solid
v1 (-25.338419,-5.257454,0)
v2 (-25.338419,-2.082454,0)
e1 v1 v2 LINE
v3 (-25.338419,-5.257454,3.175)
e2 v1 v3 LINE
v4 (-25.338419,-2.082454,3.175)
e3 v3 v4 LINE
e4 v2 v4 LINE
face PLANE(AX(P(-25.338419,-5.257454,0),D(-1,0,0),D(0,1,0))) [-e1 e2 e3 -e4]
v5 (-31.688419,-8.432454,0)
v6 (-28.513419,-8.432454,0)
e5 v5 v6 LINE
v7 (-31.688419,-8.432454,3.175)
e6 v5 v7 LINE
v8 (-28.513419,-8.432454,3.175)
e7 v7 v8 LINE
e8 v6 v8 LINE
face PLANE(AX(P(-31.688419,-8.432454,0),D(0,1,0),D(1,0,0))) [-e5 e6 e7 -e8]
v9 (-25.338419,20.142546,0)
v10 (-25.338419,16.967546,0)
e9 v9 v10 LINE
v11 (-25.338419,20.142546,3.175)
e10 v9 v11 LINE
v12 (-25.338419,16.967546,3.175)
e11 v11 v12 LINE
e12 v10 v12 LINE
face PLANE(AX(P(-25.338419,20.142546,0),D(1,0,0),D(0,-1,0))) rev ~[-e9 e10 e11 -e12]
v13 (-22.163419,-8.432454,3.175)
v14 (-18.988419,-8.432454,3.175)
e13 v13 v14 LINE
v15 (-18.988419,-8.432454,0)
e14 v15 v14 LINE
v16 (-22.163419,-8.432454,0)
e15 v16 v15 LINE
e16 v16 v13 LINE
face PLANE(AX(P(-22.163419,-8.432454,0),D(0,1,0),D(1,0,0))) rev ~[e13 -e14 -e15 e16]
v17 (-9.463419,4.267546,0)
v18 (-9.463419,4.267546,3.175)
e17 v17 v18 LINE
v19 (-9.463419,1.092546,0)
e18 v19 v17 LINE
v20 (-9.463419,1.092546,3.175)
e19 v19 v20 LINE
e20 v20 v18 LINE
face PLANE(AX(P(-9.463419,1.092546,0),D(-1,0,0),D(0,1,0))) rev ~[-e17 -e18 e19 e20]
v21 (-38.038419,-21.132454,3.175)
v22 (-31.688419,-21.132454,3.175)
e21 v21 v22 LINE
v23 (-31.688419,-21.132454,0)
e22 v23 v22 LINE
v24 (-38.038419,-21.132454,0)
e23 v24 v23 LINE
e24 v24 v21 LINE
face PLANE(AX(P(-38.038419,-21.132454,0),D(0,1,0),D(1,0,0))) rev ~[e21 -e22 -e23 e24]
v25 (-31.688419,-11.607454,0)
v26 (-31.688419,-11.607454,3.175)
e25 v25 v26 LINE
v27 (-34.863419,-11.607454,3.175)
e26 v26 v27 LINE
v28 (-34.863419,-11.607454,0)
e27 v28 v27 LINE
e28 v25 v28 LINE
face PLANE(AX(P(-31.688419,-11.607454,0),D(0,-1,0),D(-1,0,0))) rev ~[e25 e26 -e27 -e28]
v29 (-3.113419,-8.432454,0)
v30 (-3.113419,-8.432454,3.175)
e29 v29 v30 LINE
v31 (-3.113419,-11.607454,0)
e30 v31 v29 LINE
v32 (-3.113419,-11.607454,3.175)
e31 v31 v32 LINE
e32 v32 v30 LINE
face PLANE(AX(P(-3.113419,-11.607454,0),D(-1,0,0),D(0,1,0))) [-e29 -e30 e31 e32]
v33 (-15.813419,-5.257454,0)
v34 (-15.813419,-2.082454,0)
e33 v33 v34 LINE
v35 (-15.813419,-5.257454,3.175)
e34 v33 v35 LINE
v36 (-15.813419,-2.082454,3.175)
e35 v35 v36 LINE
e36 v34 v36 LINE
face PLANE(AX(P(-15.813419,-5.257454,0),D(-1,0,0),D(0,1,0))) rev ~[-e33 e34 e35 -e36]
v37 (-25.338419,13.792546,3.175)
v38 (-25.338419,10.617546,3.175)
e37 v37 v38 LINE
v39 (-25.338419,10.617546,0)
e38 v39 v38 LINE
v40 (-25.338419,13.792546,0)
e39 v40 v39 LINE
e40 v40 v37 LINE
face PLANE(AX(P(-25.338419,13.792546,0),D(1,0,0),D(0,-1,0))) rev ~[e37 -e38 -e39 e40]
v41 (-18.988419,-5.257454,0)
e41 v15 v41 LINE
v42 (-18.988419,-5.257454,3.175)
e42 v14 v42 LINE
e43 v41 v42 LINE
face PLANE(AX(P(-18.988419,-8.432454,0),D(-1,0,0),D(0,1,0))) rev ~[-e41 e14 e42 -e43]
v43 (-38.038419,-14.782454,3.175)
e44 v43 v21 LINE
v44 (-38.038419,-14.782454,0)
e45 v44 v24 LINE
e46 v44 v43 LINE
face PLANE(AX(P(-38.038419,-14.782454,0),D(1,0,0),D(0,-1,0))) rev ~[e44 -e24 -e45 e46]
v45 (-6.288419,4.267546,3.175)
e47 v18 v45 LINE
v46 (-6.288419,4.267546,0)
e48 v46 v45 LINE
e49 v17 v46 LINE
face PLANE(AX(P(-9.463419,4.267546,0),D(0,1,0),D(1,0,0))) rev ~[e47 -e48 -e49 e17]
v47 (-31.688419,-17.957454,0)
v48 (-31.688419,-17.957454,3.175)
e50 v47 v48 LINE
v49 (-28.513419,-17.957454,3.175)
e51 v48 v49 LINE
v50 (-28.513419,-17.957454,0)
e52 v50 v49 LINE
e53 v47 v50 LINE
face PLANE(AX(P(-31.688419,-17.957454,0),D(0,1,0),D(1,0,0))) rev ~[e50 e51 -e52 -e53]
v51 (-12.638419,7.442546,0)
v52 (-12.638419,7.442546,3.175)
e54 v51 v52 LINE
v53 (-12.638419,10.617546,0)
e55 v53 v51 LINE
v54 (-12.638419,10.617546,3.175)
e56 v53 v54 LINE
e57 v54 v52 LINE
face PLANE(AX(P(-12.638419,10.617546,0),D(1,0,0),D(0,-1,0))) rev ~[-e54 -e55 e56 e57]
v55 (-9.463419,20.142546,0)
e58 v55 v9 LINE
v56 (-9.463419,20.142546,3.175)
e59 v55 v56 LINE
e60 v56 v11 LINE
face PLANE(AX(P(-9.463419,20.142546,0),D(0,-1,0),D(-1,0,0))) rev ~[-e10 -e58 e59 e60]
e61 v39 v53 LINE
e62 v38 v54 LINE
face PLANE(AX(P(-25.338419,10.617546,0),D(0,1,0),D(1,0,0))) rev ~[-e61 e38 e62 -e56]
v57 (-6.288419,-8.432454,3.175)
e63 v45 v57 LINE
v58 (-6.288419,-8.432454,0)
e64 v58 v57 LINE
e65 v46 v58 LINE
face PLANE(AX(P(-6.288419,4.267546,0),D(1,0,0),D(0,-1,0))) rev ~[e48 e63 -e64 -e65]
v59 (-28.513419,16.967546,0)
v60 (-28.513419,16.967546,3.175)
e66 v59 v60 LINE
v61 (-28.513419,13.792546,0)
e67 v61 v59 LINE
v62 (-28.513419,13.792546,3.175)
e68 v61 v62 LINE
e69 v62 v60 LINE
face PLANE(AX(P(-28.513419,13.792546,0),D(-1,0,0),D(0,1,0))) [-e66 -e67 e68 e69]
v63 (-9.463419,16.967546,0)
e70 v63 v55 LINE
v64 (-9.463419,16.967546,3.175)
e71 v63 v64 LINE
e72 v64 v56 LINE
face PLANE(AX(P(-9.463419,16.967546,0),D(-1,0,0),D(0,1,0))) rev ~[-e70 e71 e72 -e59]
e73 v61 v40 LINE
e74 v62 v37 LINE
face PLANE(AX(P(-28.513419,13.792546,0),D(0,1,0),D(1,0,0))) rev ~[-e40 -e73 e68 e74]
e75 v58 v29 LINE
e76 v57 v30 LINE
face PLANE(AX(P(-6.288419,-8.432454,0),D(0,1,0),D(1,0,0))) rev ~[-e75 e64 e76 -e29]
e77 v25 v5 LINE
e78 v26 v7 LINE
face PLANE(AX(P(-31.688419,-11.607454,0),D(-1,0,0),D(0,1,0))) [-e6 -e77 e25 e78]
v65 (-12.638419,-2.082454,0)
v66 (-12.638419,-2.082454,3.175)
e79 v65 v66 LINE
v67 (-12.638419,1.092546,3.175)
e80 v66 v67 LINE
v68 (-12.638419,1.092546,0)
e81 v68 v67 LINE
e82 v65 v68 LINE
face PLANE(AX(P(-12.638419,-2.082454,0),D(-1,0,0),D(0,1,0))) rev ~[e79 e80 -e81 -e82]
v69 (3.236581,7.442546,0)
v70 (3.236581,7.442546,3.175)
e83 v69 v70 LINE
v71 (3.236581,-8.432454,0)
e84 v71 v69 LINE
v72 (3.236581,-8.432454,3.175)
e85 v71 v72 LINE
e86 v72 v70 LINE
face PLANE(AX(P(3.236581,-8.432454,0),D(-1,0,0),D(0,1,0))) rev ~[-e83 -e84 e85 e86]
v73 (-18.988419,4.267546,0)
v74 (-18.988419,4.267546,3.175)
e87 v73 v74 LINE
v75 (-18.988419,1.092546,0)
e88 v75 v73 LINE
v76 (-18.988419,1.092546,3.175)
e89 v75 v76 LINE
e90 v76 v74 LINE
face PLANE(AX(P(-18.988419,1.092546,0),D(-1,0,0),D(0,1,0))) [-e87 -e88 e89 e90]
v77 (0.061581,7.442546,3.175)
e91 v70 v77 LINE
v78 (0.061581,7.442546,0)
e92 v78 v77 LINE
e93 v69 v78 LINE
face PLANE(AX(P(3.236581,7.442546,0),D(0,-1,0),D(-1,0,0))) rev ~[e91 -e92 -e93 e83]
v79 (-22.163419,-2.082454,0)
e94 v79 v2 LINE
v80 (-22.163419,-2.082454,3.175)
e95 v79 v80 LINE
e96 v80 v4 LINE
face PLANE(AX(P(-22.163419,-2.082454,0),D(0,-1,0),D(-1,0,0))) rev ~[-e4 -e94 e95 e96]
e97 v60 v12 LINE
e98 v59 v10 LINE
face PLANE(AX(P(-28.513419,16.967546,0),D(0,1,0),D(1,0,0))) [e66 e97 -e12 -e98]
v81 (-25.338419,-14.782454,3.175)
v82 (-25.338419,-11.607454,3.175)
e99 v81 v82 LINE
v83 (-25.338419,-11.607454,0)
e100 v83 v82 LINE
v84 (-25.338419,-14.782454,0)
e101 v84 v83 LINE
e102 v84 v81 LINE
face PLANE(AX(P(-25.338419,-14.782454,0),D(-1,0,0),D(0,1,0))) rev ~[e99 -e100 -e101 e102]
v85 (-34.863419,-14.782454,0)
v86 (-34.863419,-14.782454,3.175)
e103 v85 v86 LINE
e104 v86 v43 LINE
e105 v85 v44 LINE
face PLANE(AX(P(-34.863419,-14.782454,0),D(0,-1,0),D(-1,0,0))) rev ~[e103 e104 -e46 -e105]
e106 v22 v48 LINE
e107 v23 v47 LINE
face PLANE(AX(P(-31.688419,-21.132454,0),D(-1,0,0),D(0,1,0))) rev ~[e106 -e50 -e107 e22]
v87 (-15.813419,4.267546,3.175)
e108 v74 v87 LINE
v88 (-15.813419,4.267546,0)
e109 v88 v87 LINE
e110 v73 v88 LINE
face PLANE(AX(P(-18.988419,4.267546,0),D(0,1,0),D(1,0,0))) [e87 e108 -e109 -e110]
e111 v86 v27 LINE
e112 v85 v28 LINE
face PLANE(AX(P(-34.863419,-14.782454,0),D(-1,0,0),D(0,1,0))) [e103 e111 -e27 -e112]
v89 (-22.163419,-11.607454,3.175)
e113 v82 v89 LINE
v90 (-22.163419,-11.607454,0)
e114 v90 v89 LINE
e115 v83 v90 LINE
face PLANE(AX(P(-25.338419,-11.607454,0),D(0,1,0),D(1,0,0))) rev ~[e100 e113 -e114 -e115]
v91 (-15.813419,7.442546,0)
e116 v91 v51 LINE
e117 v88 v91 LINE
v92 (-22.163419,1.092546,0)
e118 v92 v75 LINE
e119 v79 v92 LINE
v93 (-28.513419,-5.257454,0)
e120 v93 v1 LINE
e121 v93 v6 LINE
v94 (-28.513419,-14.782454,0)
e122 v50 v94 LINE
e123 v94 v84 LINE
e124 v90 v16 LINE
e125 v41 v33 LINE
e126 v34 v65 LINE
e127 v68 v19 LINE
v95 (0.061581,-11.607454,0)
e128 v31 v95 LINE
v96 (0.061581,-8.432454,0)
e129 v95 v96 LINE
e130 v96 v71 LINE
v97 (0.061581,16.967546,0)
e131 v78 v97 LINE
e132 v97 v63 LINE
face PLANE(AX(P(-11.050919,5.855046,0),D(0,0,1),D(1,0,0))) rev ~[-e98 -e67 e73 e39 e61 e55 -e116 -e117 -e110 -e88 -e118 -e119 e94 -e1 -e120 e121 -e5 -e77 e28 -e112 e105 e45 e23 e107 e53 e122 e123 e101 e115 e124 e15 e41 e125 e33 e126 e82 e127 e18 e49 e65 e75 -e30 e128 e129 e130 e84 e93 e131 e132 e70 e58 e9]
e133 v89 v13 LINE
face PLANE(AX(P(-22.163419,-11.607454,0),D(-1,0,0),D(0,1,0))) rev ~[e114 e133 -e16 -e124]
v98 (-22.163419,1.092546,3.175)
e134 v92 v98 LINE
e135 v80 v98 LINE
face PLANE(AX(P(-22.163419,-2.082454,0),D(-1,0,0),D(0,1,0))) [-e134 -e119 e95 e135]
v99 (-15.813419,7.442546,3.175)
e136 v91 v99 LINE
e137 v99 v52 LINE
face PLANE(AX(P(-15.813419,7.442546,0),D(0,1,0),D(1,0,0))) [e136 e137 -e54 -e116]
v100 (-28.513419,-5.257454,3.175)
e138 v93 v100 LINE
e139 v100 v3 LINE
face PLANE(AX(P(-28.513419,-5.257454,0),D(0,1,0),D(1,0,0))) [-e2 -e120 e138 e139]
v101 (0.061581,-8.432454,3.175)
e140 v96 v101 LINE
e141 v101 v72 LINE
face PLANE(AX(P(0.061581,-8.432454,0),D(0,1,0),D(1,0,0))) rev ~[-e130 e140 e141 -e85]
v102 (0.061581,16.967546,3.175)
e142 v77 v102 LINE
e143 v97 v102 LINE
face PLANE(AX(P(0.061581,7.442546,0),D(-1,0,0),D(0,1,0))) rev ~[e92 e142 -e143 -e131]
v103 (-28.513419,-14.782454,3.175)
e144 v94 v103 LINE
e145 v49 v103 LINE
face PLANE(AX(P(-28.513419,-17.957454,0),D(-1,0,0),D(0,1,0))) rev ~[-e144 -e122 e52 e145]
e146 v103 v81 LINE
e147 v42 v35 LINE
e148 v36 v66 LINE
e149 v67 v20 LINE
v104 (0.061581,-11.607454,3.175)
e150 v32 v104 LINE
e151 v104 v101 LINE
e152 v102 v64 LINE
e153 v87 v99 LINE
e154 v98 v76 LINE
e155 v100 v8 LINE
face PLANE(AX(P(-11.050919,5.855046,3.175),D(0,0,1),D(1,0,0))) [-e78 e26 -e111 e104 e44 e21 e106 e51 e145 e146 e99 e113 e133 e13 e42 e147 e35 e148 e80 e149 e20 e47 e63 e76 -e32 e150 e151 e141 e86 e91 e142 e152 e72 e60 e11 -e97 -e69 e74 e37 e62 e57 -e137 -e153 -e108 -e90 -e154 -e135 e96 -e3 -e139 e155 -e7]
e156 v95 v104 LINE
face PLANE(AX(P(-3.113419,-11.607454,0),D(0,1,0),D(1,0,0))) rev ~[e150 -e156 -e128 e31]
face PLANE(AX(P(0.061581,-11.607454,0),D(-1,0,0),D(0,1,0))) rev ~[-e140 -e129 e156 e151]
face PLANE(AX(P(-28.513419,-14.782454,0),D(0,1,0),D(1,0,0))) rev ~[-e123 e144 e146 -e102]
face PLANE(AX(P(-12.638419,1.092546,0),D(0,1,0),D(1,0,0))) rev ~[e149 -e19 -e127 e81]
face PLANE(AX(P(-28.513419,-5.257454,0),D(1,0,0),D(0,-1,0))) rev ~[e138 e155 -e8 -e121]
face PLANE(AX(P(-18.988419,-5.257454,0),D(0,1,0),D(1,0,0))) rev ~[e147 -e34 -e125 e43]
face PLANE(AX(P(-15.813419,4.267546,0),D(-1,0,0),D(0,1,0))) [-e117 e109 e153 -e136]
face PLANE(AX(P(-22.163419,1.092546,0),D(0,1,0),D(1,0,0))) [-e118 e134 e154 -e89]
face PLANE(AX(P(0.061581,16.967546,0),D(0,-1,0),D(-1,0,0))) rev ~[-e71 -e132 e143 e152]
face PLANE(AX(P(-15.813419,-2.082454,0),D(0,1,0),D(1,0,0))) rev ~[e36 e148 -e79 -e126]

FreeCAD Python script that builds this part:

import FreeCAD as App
import Part
import Sketcher
Q = App.Units.Quantity

doc = App.newDocument("Part")
params = doc.addObject("Spreadsheet::Sheet", "Params")
for row, (alias, value) in enumerate([
    ("sketch1_width", "0.5 in"),
    ("pad1_length", "0.125 in"),
], start=1):
    params.set(f"A{row}", alias)
    params.set(f"B{row}", "=" + value)
    params.setAlias(f"B{row}", alias)

body = doc.addObject("PartDesign::Body", "Body")

sketch1 = body.newObject("Sketcher::SketchObject", "Sketch")
sketch1.AttachmentSupport = (doc.getObject("XY_Plane"), [""])
sketch1.MapMode = "FlatFace"
sketch1.addGeometry([
    Part.LineSegment(App.Vector(0.061581, 16.967546, 0), App.Vector(-9.463419, 16.967546, 0)),
    Part.LineSegment(App.Vector(-9.463419, 16.967546, 0), App.Vector(-9.463419, 20.142546, 0)),
    Part.LineSegment(App.Vector(-9.463419, 20.142546, 0), App.Vector(-25.338419, 20.142546, 0)),
    Part.LineSegment(App.Vector(-25.338419, 20.142546, 0), App.Vector(-25.338419, 16.967546, 0)),
    Part.LineSegment(App.Vector(-25.338419, 16.967546, 0), App.Vector(-28.513419, 16.967546, 0)),
    Part.LineSegment(App.Vector(-28.513419, 16.967546, 0), App.Vector(-28.513419, 13.792546, 0)),
    Part.LineSegment(App.Vector(-28.513419, 13.792546, 0), App.Vector(-25.338419, 13.792546, 0)),
    Part.LineSegment(App.Vector(-25.338419, 13.792546, 0), App.Vector(-25.338419, 10.617546, 0)),
    Part.LineSegment(App.Vector(-25.338419, 10.617546, 0), App.Vector(-12.638419, 10.617546, 0)),
    Part.LineSegment(App.Vector(-12.638419, 10.617546, 0), App.Vector(-12.638419, 7.442546, 0)),
    Part.LineSegment(App.Vector(-12.638419, 7.442546, 0), App.Vector(-15.813419, 7.442546, 0)),
    Part.LineSegment(App.Vector(-15.813419, 7.442546, 0), App.Vector(-15.813419, 4.267546, 0)),
    Part.LineSegment(App.Vector(-15.813419, 4.267546, 0), App.Vector(-18.988419, 4.267546, 0)),
    Part.LineSegment(App.Vector(-18.988419, 4.267546, 0), App.Vector(-18.988419, 1.092546, 0)),
    Part.LineSegment(App.Vector(-18.988419, 1.092546, 0), App.Vector(-22.163419, 1.092546, 0)),
    Part.LineSegment(App.Vector(-22.163419, 1.092546, 0), App.Vector(-22.163419, -2.082454, 0)),
    Part.LineSegment(App.Vector(-22.163419, -2.082454, 0), App.Vector(-25.338419, -2.082454, 0)),
    Part.LineSegment(App.Vector(-25.338419, -2.082454, 0), App.Vector(-25.338419, -5.257454, 0)),
    Part.LineSegment(App.Vector(-25.338419, -5.257454, 0), App.Vector(-28.513419, -5.257454, 0)),
    Part.LineSegment(App.Vector(-28.513419, -5.257454, 0), App.Vector(-28.513419, -8.432454, 0)),
    Part.LineSegment(App.Vector(-28.513419, -8.432454, 0), App.Vector(-31.688419, -8.432454, 0)),
    Part.LineSegment(App.Vector(-31.688419, -8.432454, 0), App.Vector(-31.688419, -11.607454, 0)),
    Part.LineSegment(App.Vector(-31.688419, -11.607454, 0), App.Vector(-34.863419, -11.607454, 0)),
    Part.LineSegment(App.Vector(-34.863419, -11.607454, 0), App.Vector(-34.863419, -14.782454, 0)),
    Part.LineSegment(App.Vector(-34.863419, -14.782454, 0), App.Vector(-38.038419, -14.782454, 0)),
    Part.LineSegment(App.Vector(-38.038419, -14.782454, 0), App.Vector(-38.038419, -21.132454, 0)),
    Part.LineSegment(App.Vector(-38.038419, -21.132454, 0), App.Vector(-31.688419, -21.132454, 0)),
    Part.LineSegment(App.Vector(-31.688419, -21.132454, 0), App.Vector(-31.688419, -17.957454, 0)),
    Part.LineSegment(App.Vector(-31.688419, -17.957454, 0), App.Vector(-28.513419, -17.957454, 0)),
    Part.LineSegment(App.Vector(-28.513419, -17.957454, 0), App.Vector(-28.513419, -14.782454, 0)),
    Part.LineSegment(App.Vector(-28.513419, -14.782454, 0), App.Vector(-25.338419, -14.782454, 0)),
    Part.LineSegment(App.Vector(-25.338419, -14.782454, 0), App.Vector(-25.338419, -11.607454, 0)),
    Part.LineSegment(App.Vector(-25.338419, -11.607454, 0), App.Vector(-22.163419, -11.607454, 0)),
    Part.LineSegment(App.Vector(-22.163419, -11.607454, 0), App.Vector(-22.163419, -8.432454, 0)),
    Part.LineSegment(App.Vector(-22.163419, -8.432454, 0), App.Vector(-18.988419, -8.432454, 0)),
    Part.LineSegment(App.Vector(-18.988419, -8.432454, 0), App.Vector(-18.988419, -5.257454, 0)),
    Part.LineSegment(App.Vector(-18.988419, -5.257454, 0), App.Vector(-15.813419, -5.257454, 0)),
    Part.LineSegment(App.Vector(-15.813419, -5.257454, 0), App.Vector(-15.813419, -2.082454, 0)),
    Part.LineSegment(App.Vector(-15.813419, -2.082454, 0), App.Vector(-12.638419, -2.082454, 0)),
    Part.LineSegment(App.Vector(-12.638419, -2.082454, 0), App.Vector(-12.638419, 1.092546, 0)),
    Part.LineSegment(App.Vector(-12.638419, 1.092546, 0), App.Vector(-9.463419, 1.092546, 0)),
    Part.LineSegment(App.Vector(-9.463419, 1.092546, 0), App.Vector(-9.463419, 4.267546, 0)),
    Part.LineSegment(App.Vector(-9.463419, 4.267546, 0), App.Vector(-6.288419, 4.267546, 0)),
    Part.LineSegment(App.Vector(-6.288419, 4.267546, 0), App.Vector(-6.288419, -8.432454, 0)),
    Part.LineSegment(App.Vector(-6.288419, -8.432454, 0), App.Vector(-3.113419, -8.432454, 0)),
    Part.LineSegment(App.Vector(-3.113419, -8.432454, 0), App.Vector(-3.113419, -11.607454, 0)),
    Part.LineSegment(App.Vector(-3.113419, -11.607454, 0), App.Vector(0.061581, -11.607454, 0)),
    Part.LineSegment(App.Vector(0.061581, -11.607454, 0), App.Vector(0.061581, -8.432454, 0)),
    Part.LineSegment(App.Vector(0.061581, -8.432454, 0), App.Vector(3.236581, -8.432454, 0)),
    Part.LineSegment(App.Vector(3.236581, -8.432454, 0), App.Vector(3.236581, 7.442546, 0)),
    Part.LineSegment(App.Vector(3.236581, 7.442546, 0), App.Vector(0.061581, 7.442546, 0)),
    Part.LineSegment(App.Vector(0.061581, 7.442546, 0), App.Vector(0.061581, 16.967546, 0)),
], False)
sketch1.addConstraint([
    Sketcher.Constraint("Coincident", 0, 2, 1, 1),
    Sketcher.Constraint("Coincident", 1, 2, 2, 1),
    Sketcher.Constraint("Coincident", 2, 2, 3, 1),
    Sketcher.Constraint("Coincident", 3, 2, 4, 1),
    Sketcher.Constraint("Coincident", 4, 2, 5, 1),
    Sketcher.Constraint("Coincident", 5, 2, 6, 1),
    Sketcher.Constraint("Coincident", 6, 2, 7, 1),
    Sketcher.Constraint("Coincident", 7, 2, 8, 1),
    Sketcher.Constraint("Coincident", 8, 2, 9, 1),
    Sketcher.Constraint("Coincident", 9, 2, 10, 1),
    Sketcher.Constraint("Coincident", 10, 2, 11, 1),
    Sketcher.Constraint("Coincident", 11, 2, 12, 1),
    Sketcher.Constraint("Coincident", 12, 2, 13, 1),
    Sketcher.Constraint("Coincident", 13, 2, 14, 1),
    Sketcher.Constraint("Coincident", 14, 2, 15, 1),
    Sketcher.Constraint("Coincident", 15, 2, 16, 1),
    Sketcher.Constraint("Coincident", 16, 2, 17, 1),
    Sketcher.Constraint("Coincident", 17, 2, 18, 1),
    Sketcher.Constraint("Coincident", 18, 2, 19, 1),
    Sketcher.Constraint("Coincident", 19, 2, 20, 1),
    Sketcher.Constraint("Coincident", 20, 2, 21, 1),
    Sketcher.Constraint("Coincident", 21, 2, 22, 1),
    Sketcher.Constraint("Coincident", 22, 2, 23, 1),
    Sketcher.Constraint("Coincident", 23, 2, 24, 1),
    Sketcher.Constraint("Coincident", 24, 2, 25, 1),
    Sketcher.Constraint("Coincident", 25, 2, 26, 1),
    Sketcher.Constraint("Coincident", 26, 2, 27, 1),
    Sketcher.Constraint("Coincident", 27, 2, 28, 1),
    Sketcher.Constraint("Coincident", 28, 2, 29, 1),
    Sketcher.Constraint("Coincident", 29, 2, 30, 1),
    Sketcher.Constraint("Coincident", 30, 2, 31, 1),
    Sketcher.Constraint("Coincident", 31, 2, 32, 1),
    Sketcher.Constraint("Coincident", 32, 2, 33, 1),
    Sketcher.Constraint("Coincident", 33, 2, 34, 1),
    Sketcher.Constraint("Coincident", 34, 2, 35, 1),
    Sketcher.Constraint("Coincident", 35, 2, 36, 1),
    Sketcher.Constraint("Coincident", 36, 2, 37, 1),
    Sketcher.Constraint("Coincident", 37, 2, 38, 1),
    Sketcher.Constraint("Coincident", 38, 2, 39, 1),
    Sketcher.Constraint("Coincident", 39, 2, 40, 1),
    Sketcher.Constraint("Coincident", 40, 2, 41, 1),
    Sketcher.Constraint("Coincident", 41, 2, 42, 1),
    Sketcher.Constraint("Coincident", 42, 2, 43, 1),
    Sketcher.Constraint("Coincident", 43, 2, 44, 1),
    Sketcher.Constraint("Coincident", 44, 2, 45, 1),
    Sketcher.Constraint("Coincident", 45, 2, 46, 1),
    Sketcher.Constraint("Coincident", 46, 2, 47, 1),
    Sketcher.Constraint("Coincident", 47, 2, 48, 1),
    Sketcher.Constraint("Coincident", 48, 2, 49, 1),
    Sketcher.Constraint("Coincident", 49, 2, 50, 1),
    Sketcher.Constraint("Coincident", 50, 2, 51, 1),
    Sketcher.Constraint("Coincident", 51, 2, 0, 1),
    Sketcher.Constraint("Horizontal", 0),
    Sketcher.Constraint("Vertical", 1),
    Sketcher.Constraint("Horizontal", 2),
    Sketcher.Constraint("Vertical", 3),
    Sketcher.Constraint("Horizontal", 4),
    Sketcher.Constraint("Vertical", 5),
    Sketcher.Constraint("Horizontal", 6),
    Sketcher.Constraint("Vertical", 7),
    Sketcher.Constraint("Horizontal", 8),
    Sketcher.Constraint("Vertical", 9),
    Sketcher.Constraint("Horizontal", 10),
    Sketcher.Constraint("Vertical", 11),
    Sketcher.Constraint("Horizontal", 12),
    Sketcher.Constraint("Vertical", 13),
    Sketcher.Constraint("Horizontal", 14),
    Sketcher.Constraint("Vertical", 15),
    Sketcher.Constraint("Horizontal", 16),
    Sketcher.Constraint("Vertical", 17),
    Sketcher.Constraint("Horizontal", 18),
    Sketcher.Constraint("Vertical", 19),
    Sketcher.Constraint("Horizontal", 20),
    Sketcher.Constraint("Vertical", 21),
    Sketcher.Constraint("Horizontal", 22),
    Sketcher.Constraint("Vertical", 23),
    Sketcher.Constraint("Horizontal", 24),
    Sketcher.Constraint("Vertical", 25),
    Sketcher.Constraint("Horizontal", 26),
    Sketcher.Constraint("Vertical", 27),
    Sketcher.Constraint("Horizontal", 28),
    Sketcher.Constraint("Vertical", 29),
    Sketcher.Constraint("Horizontal", 30),
    Sketcher.Constraint("Vertical", 31),
    Sketcher.Constraint("Horizontal", 32),
    Sketcher.Constraint("Vertical", 33),
    Sketcher.Constraint("Horizontal", 34),
    Sketcher.Constraint("Vertical", 35),
    Sketcher.Constraint("Horizontal", 36),
    Sketcher.Constraint("Vertical", 37),
    Sketcher.Constraint("Horizontal", 38),
    Sketcher.Constraint("Vertical", 39),
    Sketcher.Constraint("Horizontal", 40),
    Sketcher.Constraint("Vertical", 41),
    Sketcher.Constraint("Horizontal", 42),
    Sketcher.Constraint("Vertical", 43),
    Sketcher.Constraint("Horizontal", 44),
    Sketcher.Constraint("Vertical", 45),
    Sketcher.Constraint("Horizontal", 46),
    Sketcher.Constraint("Vertical", 47),
    Sketcher.Constraint("Horizontal", 48),
    Sketcher.Constraint("Vertical", 49),
    Sketcher.Constraint("Horizontal", 50),
    Sketcher.Constraint("Vertical", 51),
    Sketcher.Constraint("Horizontal", 0, 2, 3, 2),
    Sketcher.Constraint("Horizontal", 24, 2, 29, 2),
    Sketcher.Constraint("Horizontal", 22, 2, 31, 2),
    Sketcher.Constraint("Horizontal", 20, 2, 33, 2),
    Sketcher.Constraint("Horizontal", 18, 2, 35, 2),
    Sketcher.Constraint("Horizontal", 16, 2, 37, 2),
    Sketcher.Constraint("Horizontal", 14, 2, 39, 2),
    Sketcher.Constraint("Horizontal", 12, 2, 41, 2),
    Sketcher.Constraint("Horizontal", 34, 2, 43, 2),
    Sketcher.Constraint("Horizontal", 32, 2, 45, 2),
    Sketcher.Constraint("Horizontal", 44, 2, 47, 2),
    Sketcher.Constraint("Horizontal", 10, 2, 49, 2),
    Sketcher.Constraint("Vertical", 3, 2, 6, 2),
    Sketcher.Constraint("Vertical", 7, 2, 16, 2),
    Sketcher.Constraint("Vertical", 5, 2, 18, 2),
    Sketcher.Constraint("Vertical", 21, 2, 26, 2),
    Sketcher.Constraint("Vertical", 19, 2, 28, 2),
    Sketcher.Constraint("Vertical", 17, 2, 30, 2),
    Sketcher.Constraint("Vertical", 15, 2, 32, 2),
    Sketcher.Constraint("Vertical", 13, 2, 34, 2),
    Sketcher.Constraint("Vertical", 11, 2, 36, 2),
    Sketcher.Constraint("Vertical", 9, 2, 38, 2),
    Sketcher.Constraint("Vertical", 1, 2, 40, 2),
    Sketcher.Constraint("Vertical", 47, 2, 50, 2),
    Sketcher.Constraint("Equal", 6, 10),
    Sketcher.Constraint("Equal", 10, 12),
    Sketcher.Constraint("Equal", 12, 14),
    Sketcher.Constraint("Equal", 14, 16),
    Sketcher.Constraint("Equal", 18, 20),
    Sketcher.Constraint("Equal", 20, 22),
    Sketcher.Constraint("Equal", 22, 24),
    Sketcher.Constraint("Equal", 38, 40),
    Sketcher.Constraint("Equal", 40, 42),
    Sketcher.Constraint("Equal", 42, 44),
    Sketcher.Constraint("Equal", 44, 46),
    Sketcher.Constraint("Equal", 46, 48),
    Sketcher.Constraint("Equal", 50, 1),
    Sketcher.Constraint("Equal", 3, 5),
    Sketcher.Constraint("Equal", 5, 7),
    Sketcher.Constraint("Equal", 7, 9),
    Sketcher.Constraint("Equal", 9, 11),
    Sketcher.Constraint("Equal", 11, 13),
    Sketcher.Constraint("Equal", 13, 15),
    Sketcher.Constraint("Equal", 15, 17),
    Sketcher.Constraint("Equal", 17, 19),
    Sketcher.Constraint("Equal", 19, 21),
    Sketcher.Constraint("Equal", 21, 23),
    Sketcher.Constraint("Equal", 26, 25),
    Sketcher.Constraint("Equal", 23, 27),
    Sketcher.Constraint("DistanceX", 8, 1, 8, 2, Q("0.5 in")),
    Sketcher.Constraint("DistanceX", 0, 2, -1, 1, Q("9.463419 mm")),
    Sketcher.Constraint("DistanceY", -1, 1, 0, 2, Q("16.967546 mm")),
])
sketch1.setExpression("Constraints[153]", "Params.sketch1_width")
pad1 = body.newObject("PartDesign::Pad", "Pad")
pad1.Profile = sketch1
pad1.setExpression("Length", "Params.pad1_length")

doc.recompute()
